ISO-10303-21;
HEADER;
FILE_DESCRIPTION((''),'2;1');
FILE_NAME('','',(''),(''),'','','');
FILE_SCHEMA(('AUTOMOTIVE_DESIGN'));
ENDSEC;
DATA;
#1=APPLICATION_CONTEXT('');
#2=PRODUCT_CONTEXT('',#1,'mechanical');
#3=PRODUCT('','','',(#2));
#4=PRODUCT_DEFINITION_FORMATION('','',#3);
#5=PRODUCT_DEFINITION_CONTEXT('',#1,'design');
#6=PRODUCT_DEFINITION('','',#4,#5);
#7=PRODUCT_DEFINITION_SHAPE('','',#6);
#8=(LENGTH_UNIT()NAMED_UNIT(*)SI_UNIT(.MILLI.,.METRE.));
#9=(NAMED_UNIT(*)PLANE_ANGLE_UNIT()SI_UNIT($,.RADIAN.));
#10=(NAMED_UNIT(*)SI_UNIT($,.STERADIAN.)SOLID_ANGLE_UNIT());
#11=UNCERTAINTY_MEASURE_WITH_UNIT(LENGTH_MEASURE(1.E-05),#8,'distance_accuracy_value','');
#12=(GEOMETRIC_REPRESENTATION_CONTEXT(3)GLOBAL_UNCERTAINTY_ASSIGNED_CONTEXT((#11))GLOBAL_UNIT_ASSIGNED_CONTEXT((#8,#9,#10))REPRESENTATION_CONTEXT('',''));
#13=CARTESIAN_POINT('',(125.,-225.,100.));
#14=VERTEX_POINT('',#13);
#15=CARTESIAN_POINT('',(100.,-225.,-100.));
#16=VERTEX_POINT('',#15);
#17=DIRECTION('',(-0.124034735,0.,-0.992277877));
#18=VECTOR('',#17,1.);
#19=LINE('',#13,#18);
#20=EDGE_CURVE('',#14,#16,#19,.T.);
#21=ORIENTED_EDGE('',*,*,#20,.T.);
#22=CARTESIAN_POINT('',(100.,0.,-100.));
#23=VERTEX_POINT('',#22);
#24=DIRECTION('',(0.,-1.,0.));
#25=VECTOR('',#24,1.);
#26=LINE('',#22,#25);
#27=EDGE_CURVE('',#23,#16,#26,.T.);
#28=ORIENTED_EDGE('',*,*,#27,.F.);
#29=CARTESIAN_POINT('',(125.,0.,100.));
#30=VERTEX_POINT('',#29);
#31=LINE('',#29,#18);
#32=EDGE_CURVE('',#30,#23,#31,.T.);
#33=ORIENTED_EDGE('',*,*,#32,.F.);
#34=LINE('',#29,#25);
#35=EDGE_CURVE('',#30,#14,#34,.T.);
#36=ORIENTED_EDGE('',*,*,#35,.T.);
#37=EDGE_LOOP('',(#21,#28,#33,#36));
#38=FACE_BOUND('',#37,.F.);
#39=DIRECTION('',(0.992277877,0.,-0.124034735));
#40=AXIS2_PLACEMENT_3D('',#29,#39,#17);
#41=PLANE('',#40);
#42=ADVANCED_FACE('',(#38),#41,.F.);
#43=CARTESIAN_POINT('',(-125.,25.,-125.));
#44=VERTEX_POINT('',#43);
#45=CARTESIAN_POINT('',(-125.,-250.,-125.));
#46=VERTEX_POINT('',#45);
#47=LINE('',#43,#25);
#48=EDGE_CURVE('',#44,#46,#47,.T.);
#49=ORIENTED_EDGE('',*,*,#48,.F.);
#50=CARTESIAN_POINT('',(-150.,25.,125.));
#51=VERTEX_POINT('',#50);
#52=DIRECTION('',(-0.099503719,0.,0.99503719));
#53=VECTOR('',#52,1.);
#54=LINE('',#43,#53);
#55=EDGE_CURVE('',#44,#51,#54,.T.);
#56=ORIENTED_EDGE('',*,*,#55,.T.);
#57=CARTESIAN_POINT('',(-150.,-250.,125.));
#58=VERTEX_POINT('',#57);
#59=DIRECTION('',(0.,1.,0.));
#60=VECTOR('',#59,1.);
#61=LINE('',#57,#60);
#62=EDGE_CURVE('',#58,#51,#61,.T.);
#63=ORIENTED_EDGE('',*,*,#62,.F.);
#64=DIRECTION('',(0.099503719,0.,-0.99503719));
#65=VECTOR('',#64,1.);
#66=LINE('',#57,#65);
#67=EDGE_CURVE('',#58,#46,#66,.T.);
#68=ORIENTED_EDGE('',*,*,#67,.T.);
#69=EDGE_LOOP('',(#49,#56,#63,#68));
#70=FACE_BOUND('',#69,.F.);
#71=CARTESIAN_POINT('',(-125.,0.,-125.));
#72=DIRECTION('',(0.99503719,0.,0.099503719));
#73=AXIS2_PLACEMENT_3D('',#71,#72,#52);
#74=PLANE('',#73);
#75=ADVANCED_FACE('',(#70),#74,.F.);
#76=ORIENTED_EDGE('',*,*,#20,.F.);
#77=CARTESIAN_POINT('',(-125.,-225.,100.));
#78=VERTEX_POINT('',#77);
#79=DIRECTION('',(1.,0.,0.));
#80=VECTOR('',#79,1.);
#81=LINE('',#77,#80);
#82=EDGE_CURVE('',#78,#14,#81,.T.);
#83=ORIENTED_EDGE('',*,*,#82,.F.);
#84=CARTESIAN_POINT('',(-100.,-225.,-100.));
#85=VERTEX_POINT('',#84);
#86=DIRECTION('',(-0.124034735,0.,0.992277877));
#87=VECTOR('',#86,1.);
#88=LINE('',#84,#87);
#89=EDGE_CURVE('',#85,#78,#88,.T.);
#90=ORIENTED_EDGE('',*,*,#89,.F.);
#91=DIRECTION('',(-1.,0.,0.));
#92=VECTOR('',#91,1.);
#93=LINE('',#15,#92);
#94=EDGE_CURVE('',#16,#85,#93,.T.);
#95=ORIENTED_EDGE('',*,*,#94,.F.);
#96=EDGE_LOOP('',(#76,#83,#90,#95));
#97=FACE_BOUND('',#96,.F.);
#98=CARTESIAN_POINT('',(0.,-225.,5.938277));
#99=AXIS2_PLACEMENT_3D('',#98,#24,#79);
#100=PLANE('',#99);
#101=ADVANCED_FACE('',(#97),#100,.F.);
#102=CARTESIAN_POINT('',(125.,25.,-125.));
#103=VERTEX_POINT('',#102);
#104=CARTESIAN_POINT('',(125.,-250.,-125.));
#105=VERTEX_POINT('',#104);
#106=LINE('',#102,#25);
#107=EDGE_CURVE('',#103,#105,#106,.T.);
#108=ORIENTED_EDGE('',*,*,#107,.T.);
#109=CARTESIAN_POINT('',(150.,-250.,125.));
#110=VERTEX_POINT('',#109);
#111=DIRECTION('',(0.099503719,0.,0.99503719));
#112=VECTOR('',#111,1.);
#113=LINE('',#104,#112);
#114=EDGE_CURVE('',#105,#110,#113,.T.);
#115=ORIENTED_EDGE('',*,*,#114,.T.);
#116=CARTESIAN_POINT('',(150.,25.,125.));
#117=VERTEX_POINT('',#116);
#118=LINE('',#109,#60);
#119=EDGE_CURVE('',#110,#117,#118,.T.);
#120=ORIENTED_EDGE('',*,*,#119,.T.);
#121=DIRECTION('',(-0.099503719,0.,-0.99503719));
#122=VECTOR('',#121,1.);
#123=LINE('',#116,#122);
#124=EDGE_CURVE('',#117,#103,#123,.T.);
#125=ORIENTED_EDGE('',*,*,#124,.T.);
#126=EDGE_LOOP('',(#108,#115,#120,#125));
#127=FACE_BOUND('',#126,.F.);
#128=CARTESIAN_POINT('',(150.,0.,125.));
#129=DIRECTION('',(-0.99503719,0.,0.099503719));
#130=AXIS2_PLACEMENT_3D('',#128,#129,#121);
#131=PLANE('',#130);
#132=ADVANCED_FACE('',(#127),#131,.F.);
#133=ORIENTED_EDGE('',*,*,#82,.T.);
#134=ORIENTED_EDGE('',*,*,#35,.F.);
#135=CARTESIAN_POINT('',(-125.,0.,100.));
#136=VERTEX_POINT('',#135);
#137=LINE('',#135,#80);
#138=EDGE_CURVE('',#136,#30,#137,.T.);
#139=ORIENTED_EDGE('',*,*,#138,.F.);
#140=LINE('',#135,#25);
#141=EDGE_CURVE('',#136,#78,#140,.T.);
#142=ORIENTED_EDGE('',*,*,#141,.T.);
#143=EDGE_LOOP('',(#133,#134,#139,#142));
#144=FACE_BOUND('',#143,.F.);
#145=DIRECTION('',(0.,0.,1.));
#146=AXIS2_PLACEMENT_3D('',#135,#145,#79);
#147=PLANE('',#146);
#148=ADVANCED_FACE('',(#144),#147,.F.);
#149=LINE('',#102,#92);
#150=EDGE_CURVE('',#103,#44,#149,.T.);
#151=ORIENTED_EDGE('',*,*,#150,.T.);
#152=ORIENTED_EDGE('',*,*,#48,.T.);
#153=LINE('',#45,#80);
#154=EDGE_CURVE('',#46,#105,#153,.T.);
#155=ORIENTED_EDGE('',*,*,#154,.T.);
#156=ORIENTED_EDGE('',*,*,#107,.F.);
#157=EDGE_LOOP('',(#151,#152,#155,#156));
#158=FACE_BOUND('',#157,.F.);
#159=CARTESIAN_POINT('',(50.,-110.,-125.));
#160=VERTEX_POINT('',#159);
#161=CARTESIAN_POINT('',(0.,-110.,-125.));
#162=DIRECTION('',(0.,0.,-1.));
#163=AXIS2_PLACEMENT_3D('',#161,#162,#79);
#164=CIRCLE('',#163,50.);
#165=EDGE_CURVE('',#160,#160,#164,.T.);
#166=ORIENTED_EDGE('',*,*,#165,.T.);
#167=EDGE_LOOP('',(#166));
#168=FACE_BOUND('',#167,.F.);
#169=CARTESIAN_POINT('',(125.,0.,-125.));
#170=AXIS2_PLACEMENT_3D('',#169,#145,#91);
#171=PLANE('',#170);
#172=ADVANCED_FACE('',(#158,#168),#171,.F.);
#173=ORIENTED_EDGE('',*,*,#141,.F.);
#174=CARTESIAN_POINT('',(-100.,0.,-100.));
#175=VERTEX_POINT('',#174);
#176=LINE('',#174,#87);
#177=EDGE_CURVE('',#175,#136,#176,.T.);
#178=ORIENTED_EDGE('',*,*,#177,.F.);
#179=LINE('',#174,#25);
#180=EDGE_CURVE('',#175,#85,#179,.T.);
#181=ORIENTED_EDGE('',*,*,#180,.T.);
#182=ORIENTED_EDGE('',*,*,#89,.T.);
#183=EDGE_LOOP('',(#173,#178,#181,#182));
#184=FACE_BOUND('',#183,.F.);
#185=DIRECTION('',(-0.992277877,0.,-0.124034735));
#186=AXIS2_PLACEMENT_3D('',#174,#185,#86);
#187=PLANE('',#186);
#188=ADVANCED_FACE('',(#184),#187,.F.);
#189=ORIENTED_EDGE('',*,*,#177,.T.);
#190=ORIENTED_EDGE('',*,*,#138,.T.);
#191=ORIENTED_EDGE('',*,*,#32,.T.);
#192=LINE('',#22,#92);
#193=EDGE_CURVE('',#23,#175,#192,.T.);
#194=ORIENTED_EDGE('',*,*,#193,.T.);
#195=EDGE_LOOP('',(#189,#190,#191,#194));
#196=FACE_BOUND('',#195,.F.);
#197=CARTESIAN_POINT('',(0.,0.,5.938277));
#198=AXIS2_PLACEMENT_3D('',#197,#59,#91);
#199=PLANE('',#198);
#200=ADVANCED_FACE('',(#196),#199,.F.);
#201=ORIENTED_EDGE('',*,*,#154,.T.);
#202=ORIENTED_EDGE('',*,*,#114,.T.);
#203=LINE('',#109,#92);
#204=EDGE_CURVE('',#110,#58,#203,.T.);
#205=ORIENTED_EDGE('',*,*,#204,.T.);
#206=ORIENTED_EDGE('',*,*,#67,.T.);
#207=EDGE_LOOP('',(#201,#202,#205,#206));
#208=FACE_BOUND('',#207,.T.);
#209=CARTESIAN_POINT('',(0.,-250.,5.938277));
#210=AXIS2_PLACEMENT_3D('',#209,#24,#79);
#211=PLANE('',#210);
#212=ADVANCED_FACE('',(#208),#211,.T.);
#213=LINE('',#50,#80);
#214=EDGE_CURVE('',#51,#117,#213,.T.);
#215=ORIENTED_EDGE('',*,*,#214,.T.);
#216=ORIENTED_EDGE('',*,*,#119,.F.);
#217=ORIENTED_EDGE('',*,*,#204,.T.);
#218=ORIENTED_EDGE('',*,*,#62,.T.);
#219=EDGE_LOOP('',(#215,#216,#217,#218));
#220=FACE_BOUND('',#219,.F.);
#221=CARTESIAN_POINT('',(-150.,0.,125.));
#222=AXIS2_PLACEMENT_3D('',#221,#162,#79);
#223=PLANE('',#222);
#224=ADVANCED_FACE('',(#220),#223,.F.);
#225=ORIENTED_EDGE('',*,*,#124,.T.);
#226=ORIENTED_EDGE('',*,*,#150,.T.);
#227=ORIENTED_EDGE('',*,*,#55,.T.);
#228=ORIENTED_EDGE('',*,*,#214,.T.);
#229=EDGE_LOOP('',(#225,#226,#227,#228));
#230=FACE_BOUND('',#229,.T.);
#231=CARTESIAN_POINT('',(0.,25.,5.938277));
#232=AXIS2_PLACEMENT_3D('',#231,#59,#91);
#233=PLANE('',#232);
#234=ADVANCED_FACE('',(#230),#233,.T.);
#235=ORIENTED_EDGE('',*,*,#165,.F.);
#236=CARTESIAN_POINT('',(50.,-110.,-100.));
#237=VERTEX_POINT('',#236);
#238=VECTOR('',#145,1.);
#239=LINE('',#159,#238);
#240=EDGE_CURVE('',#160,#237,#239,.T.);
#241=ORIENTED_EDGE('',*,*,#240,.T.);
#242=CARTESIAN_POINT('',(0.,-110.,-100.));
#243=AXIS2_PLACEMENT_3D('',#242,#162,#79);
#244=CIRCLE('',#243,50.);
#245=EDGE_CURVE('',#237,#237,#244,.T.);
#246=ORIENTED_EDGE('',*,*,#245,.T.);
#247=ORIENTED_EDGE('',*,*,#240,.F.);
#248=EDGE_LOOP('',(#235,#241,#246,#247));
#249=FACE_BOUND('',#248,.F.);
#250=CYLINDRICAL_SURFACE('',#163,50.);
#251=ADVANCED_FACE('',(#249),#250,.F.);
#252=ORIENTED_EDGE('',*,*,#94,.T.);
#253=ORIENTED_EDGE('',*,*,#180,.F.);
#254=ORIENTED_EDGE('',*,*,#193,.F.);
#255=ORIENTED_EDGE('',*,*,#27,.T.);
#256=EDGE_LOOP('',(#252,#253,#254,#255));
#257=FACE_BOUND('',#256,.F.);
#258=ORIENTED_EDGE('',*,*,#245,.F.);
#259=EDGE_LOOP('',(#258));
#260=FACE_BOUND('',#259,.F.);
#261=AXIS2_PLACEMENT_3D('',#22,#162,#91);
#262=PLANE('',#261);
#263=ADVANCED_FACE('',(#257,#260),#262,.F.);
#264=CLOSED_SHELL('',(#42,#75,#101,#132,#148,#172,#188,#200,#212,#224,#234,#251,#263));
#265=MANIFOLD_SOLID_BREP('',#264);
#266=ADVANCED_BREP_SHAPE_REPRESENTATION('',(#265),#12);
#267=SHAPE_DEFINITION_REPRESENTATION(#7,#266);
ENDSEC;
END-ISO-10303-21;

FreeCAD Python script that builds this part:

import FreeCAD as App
import Part
import Sketcher
Q = App.Units.Quantity

doc = App.newDocument("Part")
body = doc.addObject("PartDesign::Body", "Body")

sketch1 = doc.addObject("Sketcher::SketchObject", "Sketch")
body.addObject(sketch1)
sketch1.AttachmentSupport = (doc.XZ_Plane, [""])
sketch1.MapMode = "FlatFace"
sketch1.addGeometry([
    Part.LineSegment(App.Vector(-125, -125, 0), App.Vector(125, -125, 0)),
    Part.LineSegment(App.Vector(125, -125, 0), App.Vector(150, 125, 0)),
    Part.LineSegment(App.Vector(150, 125, 0), App.Vector(-150, 125, 0)),
    Part.LineSegment(App.Vector(-150, 125, 0), App.Vector(-125, -125, 0)),
    Part.LineSegment(App.Vector(-125, 100, 0), App.Vector(125, 100, 0)),
    Part.LineSegment(App.Vector(125, 100, 0), App.Vector(100, -100, 0)),
    Part.LineSegment(App.Vector(100, -100, 0), App.Vector(-100, -100, 0)),
    Part.LineSegment(App.Vector(-100, -100, 0), App.Vector(-125, 100, 0)),
], False)
sketch1.addConstraint([
    Sketcher.Constraint("Coincident", 0, 2, 1, 1),
    Sketcher.Constraint("Coincident", 1, 2, 2, 1),
    Sketcher.Constraint("Coincident", 2, 2, 3, 1),
    Sketcher.Constraint("Coincident", 3, 2, 0, 1),
    Sketcher.Constraint("Coincident", 4, 2, 5, 1),
    Sketcher.Constraint("Coincident", 5, 2, 6, 1),
    Sketcher.Constraint("Coincident", 6, 2, 7, 1),
    Sketcher.Constraint("Coincident", 7, 2, 4, 1),
    Sketcher.Constraint("Horizontal", 0),
    Sketcher.Constraint("Horizontal", 2),
    Sketcher.Constraint("Horizontal", 4),
    Sketcher.Constraint("Horizontal", 6),
    Sketcher.Constraint("Vertical", 0, 2, 4, 2),
    Sketcher.Constraint("Vertical", 3, 2, 7, 2),
    Sketcher.Constraint("Equal", 1, 3),
    Sketcher.Constraint("Equal", 5, 7),
    Sketcher.Constraint("DistanceX", 0, 1, 0, 2, Q("250 mm")),
    Sketcher.Constraint("DistanceX", 2, 2, 2, 1, Q("300 mm")),
    Sketcher.Constraint("DistanceX", 6, 2, 6, 1, Q("200 mm")),
    Sketcher.Constraint("DistanceX", -1, 1, 0, 2, Q("125 mm")),
    Sketcher.Constraint("DistanceY", 0, 2, -1, 1, Q("125 mm")),
    Sketcher.Constraint("DistanceY", -1, 1, 1, 2, Q("125 mm")),
    Sketcher.Constraint("DistanceY", -1, 1, 4, 2, Q("100 mm")),
    Sketcher.Constraint("DistanceY", 5, 2, -1, 1, Q("100 mm")),
])
pad1 = doc.addObject("PartDesign::Pad", "Pad")
body.addObject(pad1)
pad1.Profile = sketch1
pad1.Length = 225

sketch2 = doc.addObject("Sketcher::SketchObject", "Sketch001")
body.addObject(sketch2)
sketch2.AttachmentSupport = (doc.XZ_Plane, [""])
sketch2.MapMode = "FlatFace"
sketch2.AttachmentOffset = App.Placement(App.Vector(0, 0, 225), App.Rotation())
sketch2.addGeometry([
    Part.LineSegment(App.Vector(125, -125, 0), App.Vector(150, 125, 0)),
    Part.LineSegment(App.Vector(150, 125, 0), App.Vector(-150, 125, 0)),
    Part.LineSegment(App.Vector(-150, 125, 0), App.Vector(-125, -125, 0)),
    Part.LineSegment(App.Vector(-125, -125, 0), App.Vector(125, -125, 0)),
], False)
sketch2.addConstraint([
    Sketcher.Constraint("Coincident", 0, 2, 1, 1),
    Sketcher.Constraint("Coincident", 1, 2, 2, 1),
    Sketcher.Constraint("Coincident", 2, 2, 3, 1),
    Sketcher.Constraint("Coincident", 3, 2, 0, 1),
    Sketcher.Constraint("Horizontal", 1),
    Sketcher.Constraint("Horizontal", 3),
    Sketcher.Constraint("Equal", 0, 2),
    Sketcher.Constraint("DistanceX", 1, 2, 1, 1, Q("300 mm")),
    Sketcher.Constraint("DistanceX", 3, 1, 3, 2, Q("250 mm")),
    Sketcher.Constraint("DistanceX", -1, 1, 0, 2, Q("150 mm")),
    Sketcher.Constraint("DistanceY", -1, 1, 0, 2, Q("125 mm")),
    Sketcher.Constraint("DistanceY", 2, 2, -1, 1, Q("125 mm")),
])
pad2 = doc.addObject("PartDesign::Pad", "Pad001")
body.addObject(pad2)
pad2.Profile = sketch2
pad2.Length = 25

sketch3 = doc.addObject("Sketcher::SketchObject", "Sketch002")
body.addObject(sketch3)
sketch3.AttachmentSupport = (doc.XZ_Plane, [""])
sketch3.MapMode = "FlatFace"
sketch3.addGeometry([
    Part.LineSegment(App.Vector(-125, -125, 0), App.Vector(-150, 125, 0)),
    Part.LineSegment(App.Vector(-150, 125, 0), App.Vector(150, 125, 0)),
    Part.LineSegment(App.Vector(150, 125, 0), App.Vector(125, -125, 0)),
    Part.LineSegment(App.Vector(125, -125, 0), App.Vector(-125, -125, 0)),
], False)
sketch3.addConstraint([
    Sketcher.Constraint("Coincident", 0, 2, 1, 1),
    Sketcher.Constraint("Coincident", 1, 2, 2, 1),
    Sketcher.Constraint("Coincident", 2, 2, 3, 1),
    Sketcher.Constraint("Coincident", 3, 2, 0, 1),
    Sketcher.Constraint("Horizontal", 1),
    Sketcher.Constraint("Horizontal", 3),
    Sketcher.Constraint("Equal", 0, 2),
    Sketcher.Constraint("DistanceX", 1, 1, 1, 2, Q("300 mm")),
    Sketcher.Constraint("DistanceX", 3, 2, 3, 1, Q("250 mm")),
    Sketcher.Constraint("DistanceX", 0, 2, -1, 1, Q("150 mm")),
    Sketcher.Constraint("DistanceY", -1, 1, 0, 2, Q("125 mm")),
    Sketcher.Constraint("DistanceY", 2, 2, -1, 1, Q("125 mm")),
])
pad3 = doc.addObject("PartDesign::Pad", "Pad002")
body.addObject(pad3)
pad3.Profile = sketch3
pad3.Length = 25
pad3.Reversed = True

sketch4 = doc.addObject("Sketcher::SketchObject", "Sketch003")
body.addObject(sketch4)
sketch4.AttachmentSupport = (doc.XY_Plane, [""])
sketch4.MapMode = "FlatFace"
sketch4.AttachmentOffset = App.Placement(App.Vector(0, 0, -125), App.Rotation())
sketch4.addGeometry(Part.Circle(App.Vector(0, -110, 0), App.Vector(0, 0, 1), 50), False)
sketch4.addConstraint([
    Sketcher.Constraint("PointOnObject", 0, 3, -2),
    Sketcher.Constraint("Diameter", 0, Q("100 mm")),
    Sketcher.Constraint("DistanceY", 0, 3, -1, 1, Q("110 mm")),
])
pocket1 = doc.addObject("PartDesign::Pocket", "Pocket")
body.addObject(pocket1)
pocket1.Profile = sketch4
pocket1.Length = 25
pocket1.Reversed = True

doc.recompute()
